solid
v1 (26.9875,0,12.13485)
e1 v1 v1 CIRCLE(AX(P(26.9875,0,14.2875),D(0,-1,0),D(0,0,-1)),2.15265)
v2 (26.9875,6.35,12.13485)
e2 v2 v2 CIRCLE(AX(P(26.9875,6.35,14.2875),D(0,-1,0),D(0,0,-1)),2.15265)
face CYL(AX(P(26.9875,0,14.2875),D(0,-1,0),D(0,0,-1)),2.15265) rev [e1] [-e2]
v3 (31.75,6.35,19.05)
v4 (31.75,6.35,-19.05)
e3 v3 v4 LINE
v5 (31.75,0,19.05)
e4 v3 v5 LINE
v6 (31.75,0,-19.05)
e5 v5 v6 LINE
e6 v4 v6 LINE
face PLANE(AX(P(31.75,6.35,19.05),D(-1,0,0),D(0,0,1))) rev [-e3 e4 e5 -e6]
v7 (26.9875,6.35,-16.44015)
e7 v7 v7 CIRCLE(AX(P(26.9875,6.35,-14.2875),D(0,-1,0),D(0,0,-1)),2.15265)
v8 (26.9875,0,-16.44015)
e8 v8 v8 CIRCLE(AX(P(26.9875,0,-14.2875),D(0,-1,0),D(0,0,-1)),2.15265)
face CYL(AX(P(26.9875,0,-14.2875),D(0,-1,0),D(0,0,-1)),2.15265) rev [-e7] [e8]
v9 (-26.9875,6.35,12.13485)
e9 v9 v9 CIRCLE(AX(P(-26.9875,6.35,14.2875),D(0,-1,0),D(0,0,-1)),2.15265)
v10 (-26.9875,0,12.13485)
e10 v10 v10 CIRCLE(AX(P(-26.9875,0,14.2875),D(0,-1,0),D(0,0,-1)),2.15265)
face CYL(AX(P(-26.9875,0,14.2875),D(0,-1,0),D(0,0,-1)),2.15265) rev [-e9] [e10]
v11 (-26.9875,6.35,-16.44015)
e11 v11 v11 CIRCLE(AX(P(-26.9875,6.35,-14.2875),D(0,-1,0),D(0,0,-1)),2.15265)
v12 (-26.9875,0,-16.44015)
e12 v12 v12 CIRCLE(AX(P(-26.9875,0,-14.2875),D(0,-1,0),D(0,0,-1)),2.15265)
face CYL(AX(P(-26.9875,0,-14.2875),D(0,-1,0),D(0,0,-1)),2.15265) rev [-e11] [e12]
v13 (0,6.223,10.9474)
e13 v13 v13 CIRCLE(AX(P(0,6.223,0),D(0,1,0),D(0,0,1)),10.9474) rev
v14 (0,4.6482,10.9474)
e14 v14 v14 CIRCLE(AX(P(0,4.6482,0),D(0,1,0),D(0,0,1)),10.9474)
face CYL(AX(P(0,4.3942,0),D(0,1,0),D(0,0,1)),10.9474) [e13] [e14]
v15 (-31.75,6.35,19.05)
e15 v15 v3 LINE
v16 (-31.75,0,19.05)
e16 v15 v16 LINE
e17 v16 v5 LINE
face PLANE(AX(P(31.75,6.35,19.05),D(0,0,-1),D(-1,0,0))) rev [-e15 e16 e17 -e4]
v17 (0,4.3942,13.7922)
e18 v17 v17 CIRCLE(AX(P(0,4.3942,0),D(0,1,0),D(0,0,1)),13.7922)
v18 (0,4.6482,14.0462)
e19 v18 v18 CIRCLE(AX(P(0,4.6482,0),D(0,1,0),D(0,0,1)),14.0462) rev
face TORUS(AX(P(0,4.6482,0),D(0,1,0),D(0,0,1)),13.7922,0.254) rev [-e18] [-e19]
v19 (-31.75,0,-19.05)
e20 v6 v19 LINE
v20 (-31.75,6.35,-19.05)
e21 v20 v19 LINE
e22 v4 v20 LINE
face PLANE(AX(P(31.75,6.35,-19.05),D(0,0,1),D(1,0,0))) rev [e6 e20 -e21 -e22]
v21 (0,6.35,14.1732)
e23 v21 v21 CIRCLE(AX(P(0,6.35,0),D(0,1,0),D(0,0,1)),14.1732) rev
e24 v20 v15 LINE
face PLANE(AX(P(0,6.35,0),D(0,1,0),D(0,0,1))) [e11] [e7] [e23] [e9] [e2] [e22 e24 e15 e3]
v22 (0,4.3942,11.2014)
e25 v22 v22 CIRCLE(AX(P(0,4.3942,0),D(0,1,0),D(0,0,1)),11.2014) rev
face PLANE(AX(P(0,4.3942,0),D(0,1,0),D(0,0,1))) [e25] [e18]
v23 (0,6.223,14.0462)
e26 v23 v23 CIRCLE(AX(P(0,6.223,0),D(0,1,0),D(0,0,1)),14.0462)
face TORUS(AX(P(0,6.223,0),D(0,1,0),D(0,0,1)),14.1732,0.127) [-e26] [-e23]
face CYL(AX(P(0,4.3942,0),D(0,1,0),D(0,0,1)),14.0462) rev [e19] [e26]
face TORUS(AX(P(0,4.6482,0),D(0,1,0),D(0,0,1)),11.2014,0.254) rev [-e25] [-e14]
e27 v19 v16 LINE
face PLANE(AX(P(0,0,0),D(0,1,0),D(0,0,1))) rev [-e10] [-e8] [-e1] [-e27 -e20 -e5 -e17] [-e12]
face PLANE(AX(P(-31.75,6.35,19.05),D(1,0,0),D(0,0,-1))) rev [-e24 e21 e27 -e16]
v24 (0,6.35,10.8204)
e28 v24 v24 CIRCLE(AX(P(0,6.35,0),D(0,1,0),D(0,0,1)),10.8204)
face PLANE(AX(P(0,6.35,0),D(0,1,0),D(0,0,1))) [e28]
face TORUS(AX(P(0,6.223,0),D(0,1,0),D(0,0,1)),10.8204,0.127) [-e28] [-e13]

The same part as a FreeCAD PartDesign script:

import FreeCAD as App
import Part
import Sketcher

V = App.Vector
Q = App.Units.Quantity


def edges_at(feature, points):
    """Names of the edges that pass closest to the given points."""
    edges = feature.Shape.Edges
    near = lambda p: min(range(len(edges)), key=lambda i: edges[i].distToShape(Part.Vertex(*p))[0])
    return sorted({f"Edge{near(p) + 1}" for p in points})


def add_polygon(sketch, points):
    """Adds a closed chain of lines whose ends are joined by coincident constraints."""
    first, n = sketch.GeometryCount, len(points)
    for a, b in zip(points, points[1:] + points[:1]):
        sketch.addGeometry(Part.LineSegment(App.Vector(*a, 0), App.Vector(*b, 0)), False)
    for i in range(n):
        sketch.addConstraint(Sketcher.Constraint("Coincident", first + i, 2, first + (i + 1) % n, 1))

doc = App.newDocument("Part")
body = doc.addObject("PartDesign::Body", "Body")

# Sketch on XZ plane
sketch1 = body.newObject("Sketcher::SketchObject", "Sketch")
sketch1.AttachmentSupport = (doc.getObject("XZ_Plane"), [""])
sketch1.MapMode = "FlatFace"
add_polygon(sketch1, [(-32, -19), (-32, 19), (32, 19), (32, -19)])  # lines 0-3
sketch1.addConstraint([
    Sketcher.Constraint("Vertical", 0),
    Sketcher.Constraint("Horizontal", 1),
    Sketcher.Constraint("Vertical", 2),
    Sketcher.Constraint("Horizontal", 3),
    Sketcher.Constraint("Symmetric", 0, 2, 2, 2, -1, 1),
    Sketcher.Constraint("DistanceX", 1, 1, 1, 2, Q("2.5 in")),
    Sketcher.Constraint("DistanceY", 0, 1, 0, 2, Q("1.5 in")),
])
pad1 = body.newObject("PartDesign::Pad", "Pad")
pad1.Profile = sketch1
pad1.Length = Q("0.25 in")
pad1.Reversed = True

# Sketch on XZ plane
sketch2 = body.newObject("Sketcher::SketchObject", "Sketch001")
sketch2.AttachmentSupport = (doc.getObject("XZ_Plane"), [""])
sketch2.MapMode = "FlatFace"
sketch2.AttachmentOffset = App.Placement(V(0, 0, -0.25 * 25.4), App.Rotation())
sketch2.addGeometry([
    Part.Circle(V(0, 0, 0), V(0, 0, 1), 14),
    Part.Circle(V(0, 0, 0), V(0, 0, 1), 11),
], False)
sketch2.addConstraint([
    Sketcher.Constraint("Coincident", 0, 3, -1, 1),
    Sketcher.Constraint("Coincident", 1, 3, -1, 1),
    Sketcher.Constraint("Diameter", 0, Q("1.106 in")),
    Sketcher.Constraint("Diameter", 1, Q("0.862 in")),
])
pocket1 = body.newObject("PartDesign::Pocket", "Pocket")
pocket1.Profile = sketch2
pocket1.Length = Q("0.077 in")
pocket1.Reversed = True

# Sketch on XZ plane
sketch3 = body.newObject("Sketcher::SketchObject", "Sketch002")
sketch3.AttachmentSupport = (doc.getObject("XZ_Plane"), [""])
sketch3.MapMode = "FlatFace"
sketch3.addGeometry([
    Part.Circle(V(-27, 14.3, 0), V(0, 0, 1), 2.2),
    Part.Circle(V(27, 14.3, 0), V(0, 0, 1), 2.2),
    Part.Circle(V(27, -14.3, 0), V(0, 0, 1), 2.2),
    Part.Circle(V(-27, -14.3, 0), V(0, 0, 1), 2.2),
], False)
sketch3.addConstraint([
    Sketcher.Constraint("Equal", 0, 1),
    Sketcher.Constraint("Equal", 1, 2),
    Sketcher.Constraint("Equal", 2, 3),
    Sketcher.Constraint("Symmetric", 0, 3, 2, 3, -1, 1),
    Sketcher.Constraint("Symmetric", 1, 3, 3, 3, -1, 1),
    Sketcher.Constraint("Symmetric", 0, 3, 1, 3, -2),
    Sketcher.Constraint("Diameter", 0, Q("0.1695 in")),
    Sketcher.Constraint("DistanceX", 0, 3, -1, 1, Q("1.0625 in")),
    Sketcher.Constraint("DistanceY", -1, 1, 0, 3, Q("0.5625 in")),
])
doc.recompute()
hole = body.newObject("PartDesign::Hole", "Hole")
hole.Profile = sketch3
hole.ThreadType = "None"
hole.Diameter = Q("0.1695 in")
hole.DepthType = "ThroughAll"
doc.recompute()

fillet = body.newObject("PartDesign::Fillet", "Fillet")
fillet.Base = (hole, edges_at(hole, [(0, 6.35, -14.046), (0, 6.35, -10.947)]))
fillet.Radius = Q("0.005 in")
doc.recompute()

fillet2 = body.newObject("PartDesign::Fillet", "Fillet001")
fillet2.Base = (fillet, edges_at(fillet, [(0, 4.394, -14.046), (0, 4.394, -10.947)]))
fillet2.Radius = Q("0.01 in")

doc.recompute()
